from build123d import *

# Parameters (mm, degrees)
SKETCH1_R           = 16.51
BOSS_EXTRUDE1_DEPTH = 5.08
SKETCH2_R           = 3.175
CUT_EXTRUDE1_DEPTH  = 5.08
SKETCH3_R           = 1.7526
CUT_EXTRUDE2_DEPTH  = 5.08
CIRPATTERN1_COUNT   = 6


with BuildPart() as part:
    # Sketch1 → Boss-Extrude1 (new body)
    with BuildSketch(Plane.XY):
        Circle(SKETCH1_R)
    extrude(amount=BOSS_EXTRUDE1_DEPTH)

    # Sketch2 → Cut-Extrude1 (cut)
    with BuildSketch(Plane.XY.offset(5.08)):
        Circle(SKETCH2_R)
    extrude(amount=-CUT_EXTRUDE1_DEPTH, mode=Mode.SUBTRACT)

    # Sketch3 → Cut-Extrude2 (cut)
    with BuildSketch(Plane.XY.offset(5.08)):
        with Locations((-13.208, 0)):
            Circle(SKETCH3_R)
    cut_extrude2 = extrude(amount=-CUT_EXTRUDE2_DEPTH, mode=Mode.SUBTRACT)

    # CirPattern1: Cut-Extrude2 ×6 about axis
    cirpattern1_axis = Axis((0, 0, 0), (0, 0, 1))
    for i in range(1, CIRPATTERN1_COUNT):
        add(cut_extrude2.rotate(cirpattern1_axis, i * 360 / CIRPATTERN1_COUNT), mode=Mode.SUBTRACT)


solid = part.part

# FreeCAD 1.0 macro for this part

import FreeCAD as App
import Part
import Sketcher

V = App.Vector
Q = App.Units.Quantity

doc = App.newDocument("Part")
body = doc.addObject("PartDesign::Body", "Body")

sketch1 = body.newObject("Sketcher::SketchObject", "Sketch")
sketch1.AttachmentSupport = (doc.getObject("XY_Plane"), [""])
sketch1.MapMode = "FlatFace"
sketch1.addGeometry(Part.Circle(V(0, 0, 0), V(0, 0, 1), 17), False)
sketch1.addConstraint(Sketcher.Constraint("Coincident", 0, 3, -1, 1))
sketch1.addConstraint(Sketcher.Constraint("Diameter", 0, Q("1.3 in")))
pad1 = body.newObject("PartDesign::Pad", "Pad")
pad1.Profile = sketch1
pad1.Length = Q("0.2 in")

sketch2 = body.newObject("Sketcher::SketchObject", "Sketch001")
sketch2.AttachmentSupport = (doc.getObject("XY_Plane"), [""])
sketch2.MapMode = "FlatFace"
sketch2.AttachmentOffset = App.Placement(V(0, 0, 0.2 * 25.4), App.Rotation())
sketch2.addGeometry(Part.Circle(V(0, 0, 0), V(0, 0, 1), 3.2), False)
sketch2.addConstraint(Sketcher.Constraint("Coincident", 0, 3, -1, 1))
sketch2.addConstraint(Sketcher.Constraint("Diameter", 0, Q("0.25 in")))
pocket1 = body.newObject("PartDesign::Pocket", "Pocket")
pocket1.Profile = sketch2
pocket1.Length = Q("0.2 in")

sketch3 = body.newObject("Sketcher::SketchObject", "Sketch002")
sketch3.AttachmentSupport = (doc.getObject("XY_Plane"), [""])
sketch3.MapMode = "FlatFace"
sketch3.AttachmentOffset = App.Placement(V(0, 0, 0.2 * 25.4), App.Rotation())
sketch3.addGeometry(Part.Circle(V(-13.2, 0, 0), V(0, 0, 1), 1.8), False)
sketch3.addConstraint(Sketcher.Constraint("PointOnObject", 0, 3, -1))
sketch3.addConstraint(Sketcher.Constraint("Diameter", 0, Q("0.138 in")))
sketch3.addConstraint(Sketcher.Constraint("DistanceX", 0, 3, -1, 1, Q("0.52 in")))
pocket2 = body.newObject("PartDesign::Pocket", "Pocket001")
pocket2.Profile = sketch3
pocket2.Length = Q("0.2 in")
doc.recompute()

polarpattern = body.newObject("PartDesign::PolarPattern", "PolarPattern")
polarpattern.Originals = [pocket2]
polarpattern.Axis = (doc.getObject("Z_Axis"), [""])
polarpattern.Angle = 360
polarpattern.Occurrences = 6
body.Tip = polarpattern

doc.recompute()
